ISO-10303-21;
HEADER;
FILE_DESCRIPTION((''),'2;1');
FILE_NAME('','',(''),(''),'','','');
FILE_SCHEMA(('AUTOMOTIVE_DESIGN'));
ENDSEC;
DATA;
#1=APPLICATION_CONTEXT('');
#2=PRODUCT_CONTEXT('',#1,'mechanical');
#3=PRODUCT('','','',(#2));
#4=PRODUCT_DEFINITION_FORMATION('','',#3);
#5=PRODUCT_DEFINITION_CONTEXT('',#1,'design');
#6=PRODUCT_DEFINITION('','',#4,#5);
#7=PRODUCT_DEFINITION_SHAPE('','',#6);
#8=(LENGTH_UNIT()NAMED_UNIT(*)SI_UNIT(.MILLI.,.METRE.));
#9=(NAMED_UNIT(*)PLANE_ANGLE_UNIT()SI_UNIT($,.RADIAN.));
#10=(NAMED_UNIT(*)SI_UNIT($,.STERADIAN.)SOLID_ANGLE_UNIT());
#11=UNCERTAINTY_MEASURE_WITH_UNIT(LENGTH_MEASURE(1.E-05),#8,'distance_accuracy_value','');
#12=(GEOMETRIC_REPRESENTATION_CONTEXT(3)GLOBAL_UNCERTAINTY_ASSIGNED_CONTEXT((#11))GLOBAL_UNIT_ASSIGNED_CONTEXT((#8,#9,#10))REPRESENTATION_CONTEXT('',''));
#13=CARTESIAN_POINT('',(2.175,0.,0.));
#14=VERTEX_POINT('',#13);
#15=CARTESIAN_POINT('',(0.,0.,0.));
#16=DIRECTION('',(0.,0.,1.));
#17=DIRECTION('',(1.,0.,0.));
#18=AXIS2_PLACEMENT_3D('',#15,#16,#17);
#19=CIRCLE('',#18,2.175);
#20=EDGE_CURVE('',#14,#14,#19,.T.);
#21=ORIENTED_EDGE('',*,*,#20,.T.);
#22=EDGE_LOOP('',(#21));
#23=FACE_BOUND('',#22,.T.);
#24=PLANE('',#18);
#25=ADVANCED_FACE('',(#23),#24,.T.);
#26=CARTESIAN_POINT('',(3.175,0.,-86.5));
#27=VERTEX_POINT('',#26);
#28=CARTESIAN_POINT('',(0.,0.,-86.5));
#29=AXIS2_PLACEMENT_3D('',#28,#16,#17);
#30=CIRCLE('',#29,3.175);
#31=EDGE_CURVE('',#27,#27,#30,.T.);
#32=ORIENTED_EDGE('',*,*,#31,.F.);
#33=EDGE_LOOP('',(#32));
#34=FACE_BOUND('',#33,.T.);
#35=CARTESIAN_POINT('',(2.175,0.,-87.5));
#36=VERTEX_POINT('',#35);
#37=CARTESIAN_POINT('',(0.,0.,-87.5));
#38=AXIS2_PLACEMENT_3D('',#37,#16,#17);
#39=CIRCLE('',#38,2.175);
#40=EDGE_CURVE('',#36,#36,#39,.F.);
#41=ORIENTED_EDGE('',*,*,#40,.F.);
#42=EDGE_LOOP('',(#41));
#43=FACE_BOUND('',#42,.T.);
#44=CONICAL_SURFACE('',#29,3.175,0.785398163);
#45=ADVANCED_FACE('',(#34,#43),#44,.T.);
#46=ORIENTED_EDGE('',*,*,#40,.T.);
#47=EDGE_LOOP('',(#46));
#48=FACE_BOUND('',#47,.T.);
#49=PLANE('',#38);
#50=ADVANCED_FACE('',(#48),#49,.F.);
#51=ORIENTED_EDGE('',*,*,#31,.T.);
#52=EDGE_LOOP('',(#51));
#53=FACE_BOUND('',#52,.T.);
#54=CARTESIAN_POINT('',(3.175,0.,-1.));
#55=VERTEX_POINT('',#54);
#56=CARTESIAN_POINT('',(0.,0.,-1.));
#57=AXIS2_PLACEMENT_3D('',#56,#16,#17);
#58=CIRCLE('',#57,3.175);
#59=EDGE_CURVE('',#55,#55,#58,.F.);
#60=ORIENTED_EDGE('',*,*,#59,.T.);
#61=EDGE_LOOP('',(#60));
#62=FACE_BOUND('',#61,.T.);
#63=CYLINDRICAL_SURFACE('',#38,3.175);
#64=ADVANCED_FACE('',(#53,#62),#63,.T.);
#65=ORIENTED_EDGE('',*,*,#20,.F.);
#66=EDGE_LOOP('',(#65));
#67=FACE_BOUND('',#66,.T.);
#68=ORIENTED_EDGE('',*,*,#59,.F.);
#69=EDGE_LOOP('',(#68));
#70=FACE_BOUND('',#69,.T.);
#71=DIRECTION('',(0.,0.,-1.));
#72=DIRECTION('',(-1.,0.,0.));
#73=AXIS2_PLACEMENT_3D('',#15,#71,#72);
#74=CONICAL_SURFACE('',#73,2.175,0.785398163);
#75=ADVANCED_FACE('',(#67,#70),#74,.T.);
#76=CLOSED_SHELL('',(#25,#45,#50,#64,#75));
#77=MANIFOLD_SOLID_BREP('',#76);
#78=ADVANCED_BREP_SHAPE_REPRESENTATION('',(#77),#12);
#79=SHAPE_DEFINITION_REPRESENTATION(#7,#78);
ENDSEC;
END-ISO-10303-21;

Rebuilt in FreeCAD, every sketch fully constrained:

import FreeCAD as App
import Part
import Sketcher
from FreeCAD import Vector


def edges_at(feature, points):
    """Names of the edges that pass closest to the given points."""
    edges = feature.Shape.Edges
    near = lambda p: min(range(len(edges)), key=lambda i: edges[i].distToShape(Part.Vertex(*p))[0])
    return sorted({f"Edge{near(p) + 1}" for p in points})

doc = App.newDocument("Part")
params = doc.addObject("Spreadsheet::Sheet", "Params")
for row, (alias, value) in enumerate([
    ("sketch1_diameter", "6.35 mm"),
    ("pad1_length", "87.5 mm"),
    ("chamfer_size", "1 mm"),
], start=1):
    params.set(f"A{row}", alias)
    params.set(f"B{row}", "=" + value)
    params.setAlias(f"B{row}", alias)

body = doc.addObject("PartDesign::Body", "Body")

sketch1 = body.newObject("Sketcher::SketchObject", "Sketch")
sketch1.AttachmentSupport = (doc.getObject("XY_Plane"), [""])
sketch1.MapMode = "FlatFace"
sketch1.addGeometry(Part.Circle(Vector(0, 0, 0), Vector(0, 0, 1), 3.2), False)
sketch1.addConstraint([
    Sketcher.Constraint("Coincident", 0, 3, -1, 1),
    Sketcher.Constraint("Diameter", 0, 6.35),
])
sketch1.setExpression("Constraints[1]", "Params.sketch1_diameter")
pad1 = body.newObject("PartDesign::Pad", "Pad")
pad1.Profile = sketch1
pad1.setExpression("Length", "Params.pad1_length")
pad1.Reversed = True
doc.recompute()

chamfer = body.newObject("PartDesign::Chamfer", "Chamfer")
chamfer.Base = (pad1, edges_at(pad1, [(-3.175, 0, 0), (-3.175, 0, -87.5)]))
chamfer.setExpression("Size", "Params.chamfer_size")

doc.recompute()
